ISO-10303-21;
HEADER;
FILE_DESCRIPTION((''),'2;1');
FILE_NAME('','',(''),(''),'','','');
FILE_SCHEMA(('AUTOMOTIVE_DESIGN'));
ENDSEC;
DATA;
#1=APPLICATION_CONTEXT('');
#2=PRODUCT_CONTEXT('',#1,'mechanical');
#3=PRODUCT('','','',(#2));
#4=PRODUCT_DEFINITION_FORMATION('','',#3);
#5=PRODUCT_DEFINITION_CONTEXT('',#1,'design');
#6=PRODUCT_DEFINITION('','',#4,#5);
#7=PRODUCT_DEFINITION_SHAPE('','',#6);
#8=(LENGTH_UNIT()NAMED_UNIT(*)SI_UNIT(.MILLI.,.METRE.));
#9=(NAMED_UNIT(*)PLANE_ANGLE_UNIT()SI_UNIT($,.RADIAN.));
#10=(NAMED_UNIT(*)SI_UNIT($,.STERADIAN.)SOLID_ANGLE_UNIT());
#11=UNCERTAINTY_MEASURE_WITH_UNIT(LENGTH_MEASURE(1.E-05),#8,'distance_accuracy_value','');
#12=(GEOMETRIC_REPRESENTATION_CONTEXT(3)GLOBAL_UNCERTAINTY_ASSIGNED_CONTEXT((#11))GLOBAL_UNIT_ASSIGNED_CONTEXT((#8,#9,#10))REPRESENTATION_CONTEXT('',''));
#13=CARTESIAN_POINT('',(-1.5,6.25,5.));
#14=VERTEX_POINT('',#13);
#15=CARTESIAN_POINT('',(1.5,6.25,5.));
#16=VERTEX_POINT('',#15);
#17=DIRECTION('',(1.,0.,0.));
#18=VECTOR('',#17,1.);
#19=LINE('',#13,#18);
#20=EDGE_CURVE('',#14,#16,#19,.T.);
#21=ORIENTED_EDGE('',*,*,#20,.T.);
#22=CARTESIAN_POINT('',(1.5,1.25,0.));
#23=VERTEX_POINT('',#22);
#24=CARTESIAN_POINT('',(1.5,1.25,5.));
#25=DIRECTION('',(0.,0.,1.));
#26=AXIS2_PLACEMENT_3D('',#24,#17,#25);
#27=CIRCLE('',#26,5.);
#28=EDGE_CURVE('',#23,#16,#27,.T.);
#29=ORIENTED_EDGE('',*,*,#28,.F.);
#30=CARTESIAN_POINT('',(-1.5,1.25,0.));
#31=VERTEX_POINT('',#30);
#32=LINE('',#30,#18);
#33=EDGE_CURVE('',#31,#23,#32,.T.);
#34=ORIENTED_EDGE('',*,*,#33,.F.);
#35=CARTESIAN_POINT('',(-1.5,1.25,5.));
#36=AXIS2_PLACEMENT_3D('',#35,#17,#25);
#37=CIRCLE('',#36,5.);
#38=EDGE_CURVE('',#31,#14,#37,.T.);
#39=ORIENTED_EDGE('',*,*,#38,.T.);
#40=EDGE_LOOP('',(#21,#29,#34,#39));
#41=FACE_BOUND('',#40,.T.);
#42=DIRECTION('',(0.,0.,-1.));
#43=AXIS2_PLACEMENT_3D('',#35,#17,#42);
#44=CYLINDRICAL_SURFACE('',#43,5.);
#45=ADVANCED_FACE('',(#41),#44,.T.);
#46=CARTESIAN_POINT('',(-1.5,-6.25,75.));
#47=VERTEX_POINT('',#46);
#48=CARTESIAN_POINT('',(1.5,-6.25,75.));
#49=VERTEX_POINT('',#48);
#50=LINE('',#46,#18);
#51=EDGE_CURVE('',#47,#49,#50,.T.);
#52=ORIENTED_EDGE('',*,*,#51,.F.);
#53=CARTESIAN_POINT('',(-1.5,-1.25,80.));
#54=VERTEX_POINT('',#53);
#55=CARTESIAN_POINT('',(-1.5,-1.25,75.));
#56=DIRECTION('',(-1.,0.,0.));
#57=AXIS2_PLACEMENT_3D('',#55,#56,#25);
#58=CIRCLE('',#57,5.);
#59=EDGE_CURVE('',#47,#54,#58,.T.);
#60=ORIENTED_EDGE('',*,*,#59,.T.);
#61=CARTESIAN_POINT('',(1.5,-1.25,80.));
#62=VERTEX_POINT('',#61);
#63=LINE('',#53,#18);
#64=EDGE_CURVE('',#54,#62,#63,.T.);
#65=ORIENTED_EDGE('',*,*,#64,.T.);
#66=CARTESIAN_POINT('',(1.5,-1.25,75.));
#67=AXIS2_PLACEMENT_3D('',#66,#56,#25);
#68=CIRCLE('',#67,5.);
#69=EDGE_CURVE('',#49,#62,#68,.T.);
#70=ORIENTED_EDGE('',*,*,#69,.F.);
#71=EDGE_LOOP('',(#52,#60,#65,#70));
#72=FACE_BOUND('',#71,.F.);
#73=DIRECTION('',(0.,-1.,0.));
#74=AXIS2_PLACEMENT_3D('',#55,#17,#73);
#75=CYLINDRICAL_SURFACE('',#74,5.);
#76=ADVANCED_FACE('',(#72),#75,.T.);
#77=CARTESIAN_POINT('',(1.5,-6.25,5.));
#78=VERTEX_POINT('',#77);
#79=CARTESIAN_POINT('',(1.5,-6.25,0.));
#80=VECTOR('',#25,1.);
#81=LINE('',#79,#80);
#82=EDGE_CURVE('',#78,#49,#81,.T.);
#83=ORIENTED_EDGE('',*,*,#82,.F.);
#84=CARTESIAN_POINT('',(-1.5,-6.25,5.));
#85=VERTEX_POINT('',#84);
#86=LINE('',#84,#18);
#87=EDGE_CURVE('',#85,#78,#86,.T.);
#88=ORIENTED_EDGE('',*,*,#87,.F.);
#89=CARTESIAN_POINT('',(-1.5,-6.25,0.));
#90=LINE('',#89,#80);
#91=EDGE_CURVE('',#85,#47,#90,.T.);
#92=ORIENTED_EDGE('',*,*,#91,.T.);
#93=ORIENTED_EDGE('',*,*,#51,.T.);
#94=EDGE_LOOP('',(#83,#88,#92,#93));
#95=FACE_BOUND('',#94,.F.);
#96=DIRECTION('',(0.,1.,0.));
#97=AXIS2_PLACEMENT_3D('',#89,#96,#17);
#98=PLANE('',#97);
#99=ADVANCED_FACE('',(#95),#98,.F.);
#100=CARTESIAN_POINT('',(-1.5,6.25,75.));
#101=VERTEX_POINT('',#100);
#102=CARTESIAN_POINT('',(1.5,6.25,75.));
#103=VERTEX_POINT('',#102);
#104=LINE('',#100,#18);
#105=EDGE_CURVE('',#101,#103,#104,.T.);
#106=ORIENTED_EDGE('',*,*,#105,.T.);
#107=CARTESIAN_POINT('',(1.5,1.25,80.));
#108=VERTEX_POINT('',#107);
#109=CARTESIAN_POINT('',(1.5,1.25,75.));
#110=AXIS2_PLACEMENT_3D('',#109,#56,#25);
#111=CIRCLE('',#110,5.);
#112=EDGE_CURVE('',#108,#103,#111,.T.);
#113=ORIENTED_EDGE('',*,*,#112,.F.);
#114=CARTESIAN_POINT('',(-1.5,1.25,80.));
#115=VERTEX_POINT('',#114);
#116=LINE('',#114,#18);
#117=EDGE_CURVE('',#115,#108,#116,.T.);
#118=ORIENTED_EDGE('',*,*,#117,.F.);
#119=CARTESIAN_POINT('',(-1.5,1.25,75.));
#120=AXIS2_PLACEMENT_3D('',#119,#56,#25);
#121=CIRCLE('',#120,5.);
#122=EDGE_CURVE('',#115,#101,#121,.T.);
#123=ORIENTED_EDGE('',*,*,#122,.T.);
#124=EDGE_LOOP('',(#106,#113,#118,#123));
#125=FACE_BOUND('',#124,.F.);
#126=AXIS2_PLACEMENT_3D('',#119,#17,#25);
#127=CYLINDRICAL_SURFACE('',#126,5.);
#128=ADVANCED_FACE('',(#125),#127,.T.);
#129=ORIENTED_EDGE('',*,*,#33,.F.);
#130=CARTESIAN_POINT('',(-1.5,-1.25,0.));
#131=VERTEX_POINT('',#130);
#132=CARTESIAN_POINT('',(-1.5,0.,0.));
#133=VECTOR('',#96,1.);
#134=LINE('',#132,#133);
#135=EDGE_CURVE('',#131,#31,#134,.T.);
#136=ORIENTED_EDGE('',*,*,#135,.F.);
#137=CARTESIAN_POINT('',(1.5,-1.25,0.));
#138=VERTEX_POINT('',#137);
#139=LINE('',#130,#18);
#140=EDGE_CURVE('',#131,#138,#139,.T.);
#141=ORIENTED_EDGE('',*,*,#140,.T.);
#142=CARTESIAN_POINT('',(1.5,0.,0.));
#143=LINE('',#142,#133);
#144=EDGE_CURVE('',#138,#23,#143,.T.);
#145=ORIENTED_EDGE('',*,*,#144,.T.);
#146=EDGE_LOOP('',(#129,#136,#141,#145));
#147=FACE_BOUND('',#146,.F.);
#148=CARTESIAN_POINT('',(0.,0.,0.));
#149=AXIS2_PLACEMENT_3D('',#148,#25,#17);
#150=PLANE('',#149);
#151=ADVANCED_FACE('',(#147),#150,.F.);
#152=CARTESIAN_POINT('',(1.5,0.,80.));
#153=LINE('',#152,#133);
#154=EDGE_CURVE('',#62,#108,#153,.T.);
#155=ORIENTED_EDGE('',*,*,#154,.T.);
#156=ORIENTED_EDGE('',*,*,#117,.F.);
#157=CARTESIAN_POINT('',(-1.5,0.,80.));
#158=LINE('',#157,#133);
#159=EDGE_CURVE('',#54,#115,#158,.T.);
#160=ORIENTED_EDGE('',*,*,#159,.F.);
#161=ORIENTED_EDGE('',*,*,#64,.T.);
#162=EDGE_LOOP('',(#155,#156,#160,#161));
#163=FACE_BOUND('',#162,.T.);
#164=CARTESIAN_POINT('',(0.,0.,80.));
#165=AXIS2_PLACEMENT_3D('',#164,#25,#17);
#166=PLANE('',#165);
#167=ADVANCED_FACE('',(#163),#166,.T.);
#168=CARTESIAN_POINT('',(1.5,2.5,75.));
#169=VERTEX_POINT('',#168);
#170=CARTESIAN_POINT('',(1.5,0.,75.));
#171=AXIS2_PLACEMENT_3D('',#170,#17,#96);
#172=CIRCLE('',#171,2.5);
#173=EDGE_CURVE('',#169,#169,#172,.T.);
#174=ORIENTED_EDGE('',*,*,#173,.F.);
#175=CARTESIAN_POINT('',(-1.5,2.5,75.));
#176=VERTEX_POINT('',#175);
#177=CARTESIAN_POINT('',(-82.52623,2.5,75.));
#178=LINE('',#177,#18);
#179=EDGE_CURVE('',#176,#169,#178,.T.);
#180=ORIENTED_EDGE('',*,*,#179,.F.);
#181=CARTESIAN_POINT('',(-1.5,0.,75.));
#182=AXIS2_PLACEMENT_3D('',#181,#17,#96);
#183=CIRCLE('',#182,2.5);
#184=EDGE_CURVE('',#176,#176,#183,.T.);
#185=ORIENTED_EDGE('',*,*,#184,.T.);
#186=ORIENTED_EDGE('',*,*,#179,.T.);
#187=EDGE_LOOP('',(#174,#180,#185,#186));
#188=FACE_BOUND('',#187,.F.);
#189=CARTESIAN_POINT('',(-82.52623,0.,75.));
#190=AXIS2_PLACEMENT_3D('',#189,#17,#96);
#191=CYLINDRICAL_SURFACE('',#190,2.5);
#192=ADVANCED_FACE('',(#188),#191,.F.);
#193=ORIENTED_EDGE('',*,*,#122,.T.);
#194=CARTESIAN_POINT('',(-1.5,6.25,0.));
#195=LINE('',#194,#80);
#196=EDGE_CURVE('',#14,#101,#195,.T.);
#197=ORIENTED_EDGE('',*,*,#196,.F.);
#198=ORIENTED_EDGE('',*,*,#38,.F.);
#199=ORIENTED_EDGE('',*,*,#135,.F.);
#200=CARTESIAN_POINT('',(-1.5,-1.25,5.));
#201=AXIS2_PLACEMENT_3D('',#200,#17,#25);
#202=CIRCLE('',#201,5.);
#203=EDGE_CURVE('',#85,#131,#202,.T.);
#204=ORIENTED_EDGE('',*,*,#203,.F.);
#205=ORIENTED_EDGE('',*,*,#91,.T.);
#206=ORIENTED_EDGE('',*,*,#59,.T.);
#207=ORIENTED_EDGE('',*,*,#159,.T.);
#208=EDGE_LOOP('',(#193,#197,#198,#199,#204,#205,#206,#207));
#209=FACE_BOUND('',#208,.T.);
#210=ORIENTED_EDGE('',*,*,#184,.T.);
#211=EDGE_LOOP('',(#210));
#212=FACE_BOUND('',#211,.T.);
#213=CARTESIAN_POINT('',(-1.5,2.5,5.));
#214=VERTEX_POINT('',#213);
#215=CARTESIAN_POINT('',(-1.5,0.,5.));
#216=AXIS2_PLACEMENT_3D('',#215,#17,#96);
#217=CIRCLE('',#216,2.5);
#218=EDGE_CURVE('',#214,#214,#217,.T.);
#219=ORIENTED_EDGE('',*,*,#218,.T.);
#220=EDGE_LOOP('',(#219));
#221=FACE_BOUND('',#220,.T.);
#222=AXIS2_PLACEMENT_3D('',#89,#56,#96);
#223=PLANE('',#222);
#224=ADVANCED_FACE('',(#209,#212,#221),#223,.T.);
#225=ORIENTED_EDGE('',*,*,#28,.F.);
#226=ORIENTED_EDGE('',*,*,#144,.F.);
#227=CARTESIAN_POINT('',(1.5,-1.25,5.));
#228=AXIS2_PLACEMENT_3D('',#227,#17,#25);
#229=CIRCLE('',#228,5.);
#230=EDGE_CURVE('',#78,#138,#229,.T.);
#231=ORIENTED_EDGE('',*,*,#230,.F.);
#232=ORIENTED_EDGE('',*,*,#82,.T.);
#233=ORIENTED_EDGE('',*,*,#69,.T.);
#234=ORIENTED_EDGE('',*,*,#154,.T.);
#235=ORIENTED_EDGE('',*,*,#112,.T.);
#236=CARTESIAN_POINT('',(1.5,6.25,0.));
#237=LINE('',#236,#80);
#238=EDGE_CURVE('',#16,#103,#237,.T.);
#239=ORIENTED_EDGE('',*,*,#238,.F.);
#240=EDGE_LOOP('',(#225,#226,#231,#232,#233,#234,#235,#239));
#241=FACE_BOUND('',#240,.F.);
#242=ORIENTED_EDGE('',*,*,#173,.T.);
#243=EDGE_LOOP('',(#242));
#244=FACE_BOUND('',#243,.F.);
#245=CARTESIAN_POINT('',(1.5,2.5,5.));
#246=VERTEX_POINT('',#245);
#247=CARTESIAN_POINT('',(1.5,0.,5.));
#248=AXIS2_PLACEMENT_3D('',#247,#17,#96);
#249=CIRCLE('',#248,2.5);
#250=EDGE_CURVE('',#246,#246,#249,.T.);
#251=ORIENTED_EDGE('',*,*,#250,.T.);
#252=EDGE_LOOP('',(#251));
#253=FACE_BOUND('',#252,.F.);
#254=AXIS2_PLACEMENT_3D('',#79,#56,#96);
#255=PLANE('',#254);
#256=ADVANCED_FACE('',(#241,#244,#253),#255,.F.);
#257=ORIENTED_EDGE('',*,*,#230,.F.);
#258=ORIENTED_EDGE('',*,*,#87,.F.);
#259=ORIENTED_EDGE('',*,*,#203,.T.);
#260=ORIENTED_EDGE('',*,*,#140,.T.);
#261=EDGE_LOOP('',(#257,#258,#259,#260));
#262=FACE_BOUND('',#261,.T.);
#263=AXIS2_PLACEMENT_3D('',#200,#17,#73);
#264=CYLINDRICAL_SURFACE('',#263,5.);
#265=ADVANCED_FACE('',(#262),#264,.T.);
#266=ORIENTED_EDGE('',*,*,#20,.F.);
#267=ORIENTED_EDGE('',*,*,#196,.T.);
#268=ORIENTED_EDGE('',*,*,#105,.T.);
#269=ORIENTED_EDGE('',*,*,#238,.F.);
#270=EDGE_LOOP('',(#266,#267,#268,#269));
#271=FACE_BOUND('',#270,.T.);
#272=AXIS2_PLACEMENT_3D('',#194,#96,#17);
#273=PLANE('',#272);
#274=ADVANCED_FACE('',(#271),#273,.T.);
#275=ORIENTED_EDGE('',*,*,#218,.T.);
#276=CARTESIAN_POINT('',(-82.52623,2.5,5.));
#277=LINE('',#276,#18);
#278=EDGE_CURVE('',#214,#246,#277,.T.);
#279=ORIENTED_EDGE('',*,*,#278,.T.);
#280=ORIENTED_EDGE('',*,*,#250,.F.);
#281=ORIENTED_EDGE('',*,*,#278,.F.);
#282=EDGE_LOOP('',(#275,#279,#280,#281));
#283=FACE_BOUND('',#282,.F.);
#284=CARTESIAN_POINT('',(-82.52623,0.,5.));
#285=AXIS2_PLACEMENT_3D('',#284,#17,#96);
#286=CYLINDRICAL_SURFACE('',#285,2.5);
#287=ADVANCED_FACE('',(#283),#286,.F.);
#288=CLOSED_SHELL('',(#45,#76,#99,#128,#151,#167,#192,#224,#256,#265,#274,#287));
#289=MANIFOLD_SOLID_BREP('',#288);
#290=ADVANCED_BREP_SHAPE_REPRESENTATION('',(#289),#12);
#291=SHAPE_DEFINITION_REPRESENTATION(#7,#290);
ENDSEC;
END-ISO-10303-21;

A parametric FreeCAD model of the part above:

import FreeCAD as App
import Part
import Sketcher


def edges_at(feature, points):
    """Names of the edges that pass closest to the given points."""
    edges = feature.Shape.Edges
    near = lambda p: min(range(len(edges)), key=lambda i: edges[i].distToShape(Part.Vertex(*p))[0])
    return sorted({f"Edge{near(p) + 1}" for p in points})

doc = App.newDocument("Part")
body = doc.addObject("PartDesign::Body", "Body")

# Sketch on XY plane
sketch1 = doc.addObject("Sketcher::SketchObject", "Sketch")
body.addObject(sketch1)
sketch1.AttachmentSupport = (doc.XY_Plane, [""])
sketch1.MapMode = "FlatFace"
sketch1.addGeometry(Part.LineSegment(App.Vector(-1.5, 6.25, 0), App.Vector(-1.5, -6.25, 0)), False)
sketch1.addGeometry(Part.LineSegment(App.Vector(-1.5, -6.25, 0), App.Vector(1.5, -6.25, 0)), False)
sketch1.addGeometry(Part.LineSegment(App.Vector(1.5, -6.25, 0), App.Vector(1.5, 6.25, 0)), False)
sketch1.addGeometry(Part.LineSegment(App.Vector(1.5, 6.25, 0), App.Vector(-1.5, 6.25, 0)), False)
sketch1.addConstraint(Sketcher.Constraint("Coincident", 0, 2, 1, 1))
sketch1.addConstraint(Sketcher.Constraint("Coincident", 1, 2, 2, 1))
sketch1.addConstraint(Sketcher.Constraint("Coincident", 2, 2, 3, 1))
sketch1.addConstraint(Sketcher.Constraint("Coincident", 3, 2, 0, 1))
sketch1.addConstraint(Sketcher.Constraint("Vertical", 0))
sketch1.addConstraint(Sketcher.Constraint("Horizontal", 1))
sketch1.addConstraint(Sketcher.Constraint("Vertical", 2))
sketch1.addConstraint(Sketcher.Constraint("Horizontal", 3))
sketch1.addConstraint(Sketcher.Constraint("Symmetric", 0, 2, 2, 2, -1, 1))
sketch1.addConstraint(Sketcher.Constraint("DistanceX", 1, 1, 1, 2, 3.0))
sketch1.addConstraint(Sketcher.Constraint("DistanceY", 0, 2, 0, 1, 12.5))
pad1 = doc.addObject("PartDesign::Pad", "Pad")
body.addObject(pad1)
pad1.Profile = sketch1
pad1.Length = 80

# Sketch on YZ plane
sketch2 = doc.addObject("Sketcher::SketchObject", "Sketch001")
body.addObject(sketch2)
sketch2.AttachmentSupport = (doc.YZ_Plane, [""])
sketch2.MapMode = "FlatFace"
sketch2.AttachmentOffset = App.Placement(App.Vector(0, 0, -1.5), App.Rotation())
sketch2.addGeometry(Part.Circle(App.Vector(0, 75, 0), App.Vector(0, 0, 1), 2.5), False)
sketch2.addGeometry(Part.Circle(App.Vector(0, 5, 0), App.Vector(0, 0, 1), 2.5), False)
sketch2.addConstraint(Sketcher.Constraint("Equal", 0, 1))
sketch2.addConstraint(Sketcher.Constraint("PointOnObject", 0, 3, -2))
sketch2.addConstraint(Sketcher.Constraint("PointOnObject", 1, 3, -2))
sketch2.addConstraint(Sketcher.Constraint("Diameter", 0, 5.0))
sketch2.addConstraint(Sketcher.Constraint("DistanceY", -1, 1, 0, 3, 75.0))
sketch2.addConstraint(Sketcher.Constraint("DistanceY", -1, 1, 1, 3, 5.0))
doc.recompute()
hole = doc.addObject("PartDesign::Hole", "Hole")
body.addObject(hole)
hole.Profile = sketch2
hole.ThreadType = "None"
hole.Diameter = 5
hole.DepthType = "ThroughAll"
hole.Reversed = True
doc.recompute()

fillet = doc.addObject("PartDesign::Fillet", "Fillet")
body.addObject(fillet)
fillet.Base = (hole, edges_at(hole, [
    (0, -6.25, 80),
    (0, 6.25, 80),
    (0, 6.25, 0),
    (0, -6.25, 0),
]))
fillet.Radius = 5

doc.recompute()
